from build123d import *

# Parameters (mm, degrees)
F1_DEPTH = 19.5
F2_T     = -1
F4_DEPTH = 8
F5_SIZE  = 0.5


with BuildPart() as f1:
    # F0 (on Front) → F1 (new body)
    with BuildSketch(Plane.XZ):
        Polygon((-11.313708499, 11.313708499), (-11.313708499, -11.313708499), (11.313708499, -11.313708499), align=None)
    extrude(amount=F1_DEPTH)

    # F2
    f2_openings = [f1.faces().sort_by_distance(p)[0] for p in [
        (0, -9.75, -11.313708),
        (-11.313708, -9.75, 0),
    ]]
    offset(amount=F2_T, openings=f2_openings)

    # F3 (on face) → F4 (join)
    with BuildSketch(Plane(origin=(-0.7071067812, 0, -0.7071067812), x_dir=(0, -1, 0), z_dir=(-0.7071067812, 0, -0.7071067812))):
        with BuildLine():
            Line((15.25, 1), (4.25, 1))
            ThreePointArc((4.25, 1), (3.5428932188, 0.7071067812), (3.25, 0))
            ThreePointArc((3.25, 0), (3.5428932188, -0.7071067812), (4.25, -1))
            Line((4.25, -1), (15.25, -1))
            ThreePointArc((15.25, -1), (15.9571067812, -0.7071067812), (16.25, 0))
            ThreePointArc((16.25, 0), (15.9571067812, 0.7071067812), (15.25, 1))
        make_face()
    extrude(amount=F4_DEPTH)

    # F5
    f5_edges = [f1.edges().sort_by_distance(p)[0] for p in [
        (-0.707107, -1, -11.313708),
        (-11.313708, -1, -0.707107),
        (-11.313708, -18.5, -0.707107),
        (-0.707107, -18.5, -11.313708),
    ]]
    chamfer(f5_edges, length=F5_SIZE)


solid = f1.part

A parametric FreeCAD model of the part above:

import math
import FreeCAD as App
import Part
import Sketcher
from FreeCAD import Vector
Q = App.Units.Quantity


def edges_at(feature, points):
    """Names of the edges that pass closest to the given points."""
    edges = feature.Shape.Edges
    near = lambda p: min(range(len(edges)), key=lambda i: edges[i].distToShape(Part.Vertex(*p))[0])
    return sorted({f"Edge{near(p) + 1}" for p in points})


def faces_at(feature, points):
    """Names of the faces that lie closest to the given points."""
    faces = feature.Shape.Faces
    near = lambda p: min(range(len(faces)), key=lambda i: faces[i].distToShape(Part.Vertex(*p))[0])
    return sorted({f"Face{near(p) + 1}" for p in points})


def add_polygon(sketch, points):
    """Adds a closed chain of lines whose ends are joined by coincident constraints."""
    first, n = sketch.GeometryCount, len(points)
    for a, b in zip(points, points[1:] + points[:1]):
        sketch.addGeometry(Part.LineSegment(App.Vector(*a, 0), App.Vector(*b, 0)), False)
    for i in range(n):
        sketch.addConstraint(Sketcher.Constraint("Coincident", first + i, 2, first + (i + 1) % n, 1))

doc = App.newDocument("Part")
body = doc.addObject("PartDesign::Body", "Body")

# Sketch on XZ plane
sketch1 = body.newObject("Sketcher::SketchObject", "Sketch")
sketch1.AttachmentSupport = (doc.getObject("XZ_Plane"), [""])
sketch1.MapMode = "FlatFace"
add_polygon(sketch1, [(-11.313708, 11.313708), (-11.313708, -11.313708), (11.313708, -11.313708)])  # lines 0-2
sketch1.addConstraint(Sketcher.Constraint("Vertical", 0))
sketch1.addConstraint(Sketcher.Constraint("Horizontal", 1))
sketch1.addConstraint(Sketcher.Constraint("Symmetric", 1, 2, 2, 2, -1, 1))
sketch1.addConstraint(Sketcher.Constraint("Equal", 1, 0))
sketch1.addConstraint(Sketcher.Constraint("Distance", 2, Q("32 mm")))
pad1 = body.newObject("PartDesign::Pad", "Pad")
pad1.Profile = sketch1
pad1.Length = 19.5
doc.recompute()

thickness = body.newObject("PartDesign::Thickness", "Thickness")
thickness.Base = (pad1, faces_at(pad1, [(0, -9.75, -11.314), (-11.314, -9.75, 0)]))
thickness.Value = 1
thickness.Reversed = True
thickness.Join = "Arc"

# Sketch on an angled plane
sketch2 = body.newObject("Sketcher::SketchObject", "Sketch001")
sketch2.Placement = App.Placement(Vector(-0.707107, 0, -0.707107), App.Rotation(Vector(0, -1, 0), Vector(-0.707106781, 0, 0.707106781), Vector(-0.707106781, 0, -0.707106781), "ZXY"))
sketch2.addGeometry(Part.LineSegment(Vector(15.25, 1, 0), Vector(4.25, 1, 0)), False)
sketch2.addGeometry(Part.ArcOfCircle(Part.Circle(Vector(4.25, 0, 0), Vector(0, 0, 1), 1), math.radians(90), math.radians(180)), False)
sketch2.addGeometry(Part.ArcOfCircle(Part.Circle(Vector(4.25, 0, 0), Vector(0, 0, 1), 1), math.radians(180), math.radians(270)), False)
sketch2.addGeometry(Part.LineSegment(Vector(4.25, -1, 0), Vector(15.25, -1, 0)), False)
sketch2.addGeometry(Part.ArcOfCircle(Part.Circle(Vector(15.25, 0, 0), Vector(0, 0, 1), 1), math.radians(-90), math.radians(0)), False)
sketch2.addGeometry(Part.ArcOfCircle(Part.Circle(Vector(15.25, 0, 0), Vector(0, 0, 1), 1), math.radians(0), math.radians(90)), False)
sketch2.addConstraint(Sketcher.Constraint("Tangent", 0, 2, 1, 1))
sketch2.addConstraint(Sketcher.Constraint("Tangent", 1, 2, 2, 1))
sketch2.addConstraint(Sketcher.Constraint("Tangent", 2, 2, 3, 1))
sketch2.addConstraint(Sketcher.Constraint("Tangent", 3, 2, 4, 1))
sketch2.addConstraint(Sketcher.Constraint("Tangent", 4, 2, 5, 1))
sketch2.addConstraint(Sketcher.Constraint("Tangent", 5, 2, 0, 1))
sketch2.addConstraint(Sketcher.Constraint("Horizontal", 0))
sketch2.addConstraint(Sketcher.Constraint("Horizontal", 3))
sketch2.addConstraint(Sketcher.Constraint("Equal", 1, 2))
sketch2.addConstraint(Sketcher.Constraint("Equal", 2, 4))
sketch2.addConstraint(Sketcher.Constraint("PointOnObject", 1, 3, -1))
sketch2.addConstraint(Sketcher.Constraint("PointOnObject", 1, 2, -1))
sketch2.addConstraint(Sketcher.Constraint("PointOnObject", 4, 2, -1))
sketch2.addConstraint(Sketcher.Constraint("Radius", 1, Q("1 mm")))
sketch2.addConstraint(Sketcher.Constraint("DistanceX", 0, 2, 0, 1, Q("11 mm")))
sketch2.addConstraint(Sketcher.Constraint("DistanceX", -1, 1, 1, 3, Q("4.25 mm")))
pad2 = body.newObject("PartDesign::Pad", "Pad001")
pad2.Profile = sketch2
pad2.Length = 8
doc.recompute()

chamfer = body.newObject("PartDesign::Chamfer", "Chamfer")
chamfer.Base = (pad2, edges_at(pad2, [
    (-0.707, -1, -11.314),
    (-11.314, -1, -0.707),
    (-11.314, -18.5, -0.707),
    (-0.707, -18.5, -11.314),
]))
chamfer.Size = 0.5

doc.recompute()
